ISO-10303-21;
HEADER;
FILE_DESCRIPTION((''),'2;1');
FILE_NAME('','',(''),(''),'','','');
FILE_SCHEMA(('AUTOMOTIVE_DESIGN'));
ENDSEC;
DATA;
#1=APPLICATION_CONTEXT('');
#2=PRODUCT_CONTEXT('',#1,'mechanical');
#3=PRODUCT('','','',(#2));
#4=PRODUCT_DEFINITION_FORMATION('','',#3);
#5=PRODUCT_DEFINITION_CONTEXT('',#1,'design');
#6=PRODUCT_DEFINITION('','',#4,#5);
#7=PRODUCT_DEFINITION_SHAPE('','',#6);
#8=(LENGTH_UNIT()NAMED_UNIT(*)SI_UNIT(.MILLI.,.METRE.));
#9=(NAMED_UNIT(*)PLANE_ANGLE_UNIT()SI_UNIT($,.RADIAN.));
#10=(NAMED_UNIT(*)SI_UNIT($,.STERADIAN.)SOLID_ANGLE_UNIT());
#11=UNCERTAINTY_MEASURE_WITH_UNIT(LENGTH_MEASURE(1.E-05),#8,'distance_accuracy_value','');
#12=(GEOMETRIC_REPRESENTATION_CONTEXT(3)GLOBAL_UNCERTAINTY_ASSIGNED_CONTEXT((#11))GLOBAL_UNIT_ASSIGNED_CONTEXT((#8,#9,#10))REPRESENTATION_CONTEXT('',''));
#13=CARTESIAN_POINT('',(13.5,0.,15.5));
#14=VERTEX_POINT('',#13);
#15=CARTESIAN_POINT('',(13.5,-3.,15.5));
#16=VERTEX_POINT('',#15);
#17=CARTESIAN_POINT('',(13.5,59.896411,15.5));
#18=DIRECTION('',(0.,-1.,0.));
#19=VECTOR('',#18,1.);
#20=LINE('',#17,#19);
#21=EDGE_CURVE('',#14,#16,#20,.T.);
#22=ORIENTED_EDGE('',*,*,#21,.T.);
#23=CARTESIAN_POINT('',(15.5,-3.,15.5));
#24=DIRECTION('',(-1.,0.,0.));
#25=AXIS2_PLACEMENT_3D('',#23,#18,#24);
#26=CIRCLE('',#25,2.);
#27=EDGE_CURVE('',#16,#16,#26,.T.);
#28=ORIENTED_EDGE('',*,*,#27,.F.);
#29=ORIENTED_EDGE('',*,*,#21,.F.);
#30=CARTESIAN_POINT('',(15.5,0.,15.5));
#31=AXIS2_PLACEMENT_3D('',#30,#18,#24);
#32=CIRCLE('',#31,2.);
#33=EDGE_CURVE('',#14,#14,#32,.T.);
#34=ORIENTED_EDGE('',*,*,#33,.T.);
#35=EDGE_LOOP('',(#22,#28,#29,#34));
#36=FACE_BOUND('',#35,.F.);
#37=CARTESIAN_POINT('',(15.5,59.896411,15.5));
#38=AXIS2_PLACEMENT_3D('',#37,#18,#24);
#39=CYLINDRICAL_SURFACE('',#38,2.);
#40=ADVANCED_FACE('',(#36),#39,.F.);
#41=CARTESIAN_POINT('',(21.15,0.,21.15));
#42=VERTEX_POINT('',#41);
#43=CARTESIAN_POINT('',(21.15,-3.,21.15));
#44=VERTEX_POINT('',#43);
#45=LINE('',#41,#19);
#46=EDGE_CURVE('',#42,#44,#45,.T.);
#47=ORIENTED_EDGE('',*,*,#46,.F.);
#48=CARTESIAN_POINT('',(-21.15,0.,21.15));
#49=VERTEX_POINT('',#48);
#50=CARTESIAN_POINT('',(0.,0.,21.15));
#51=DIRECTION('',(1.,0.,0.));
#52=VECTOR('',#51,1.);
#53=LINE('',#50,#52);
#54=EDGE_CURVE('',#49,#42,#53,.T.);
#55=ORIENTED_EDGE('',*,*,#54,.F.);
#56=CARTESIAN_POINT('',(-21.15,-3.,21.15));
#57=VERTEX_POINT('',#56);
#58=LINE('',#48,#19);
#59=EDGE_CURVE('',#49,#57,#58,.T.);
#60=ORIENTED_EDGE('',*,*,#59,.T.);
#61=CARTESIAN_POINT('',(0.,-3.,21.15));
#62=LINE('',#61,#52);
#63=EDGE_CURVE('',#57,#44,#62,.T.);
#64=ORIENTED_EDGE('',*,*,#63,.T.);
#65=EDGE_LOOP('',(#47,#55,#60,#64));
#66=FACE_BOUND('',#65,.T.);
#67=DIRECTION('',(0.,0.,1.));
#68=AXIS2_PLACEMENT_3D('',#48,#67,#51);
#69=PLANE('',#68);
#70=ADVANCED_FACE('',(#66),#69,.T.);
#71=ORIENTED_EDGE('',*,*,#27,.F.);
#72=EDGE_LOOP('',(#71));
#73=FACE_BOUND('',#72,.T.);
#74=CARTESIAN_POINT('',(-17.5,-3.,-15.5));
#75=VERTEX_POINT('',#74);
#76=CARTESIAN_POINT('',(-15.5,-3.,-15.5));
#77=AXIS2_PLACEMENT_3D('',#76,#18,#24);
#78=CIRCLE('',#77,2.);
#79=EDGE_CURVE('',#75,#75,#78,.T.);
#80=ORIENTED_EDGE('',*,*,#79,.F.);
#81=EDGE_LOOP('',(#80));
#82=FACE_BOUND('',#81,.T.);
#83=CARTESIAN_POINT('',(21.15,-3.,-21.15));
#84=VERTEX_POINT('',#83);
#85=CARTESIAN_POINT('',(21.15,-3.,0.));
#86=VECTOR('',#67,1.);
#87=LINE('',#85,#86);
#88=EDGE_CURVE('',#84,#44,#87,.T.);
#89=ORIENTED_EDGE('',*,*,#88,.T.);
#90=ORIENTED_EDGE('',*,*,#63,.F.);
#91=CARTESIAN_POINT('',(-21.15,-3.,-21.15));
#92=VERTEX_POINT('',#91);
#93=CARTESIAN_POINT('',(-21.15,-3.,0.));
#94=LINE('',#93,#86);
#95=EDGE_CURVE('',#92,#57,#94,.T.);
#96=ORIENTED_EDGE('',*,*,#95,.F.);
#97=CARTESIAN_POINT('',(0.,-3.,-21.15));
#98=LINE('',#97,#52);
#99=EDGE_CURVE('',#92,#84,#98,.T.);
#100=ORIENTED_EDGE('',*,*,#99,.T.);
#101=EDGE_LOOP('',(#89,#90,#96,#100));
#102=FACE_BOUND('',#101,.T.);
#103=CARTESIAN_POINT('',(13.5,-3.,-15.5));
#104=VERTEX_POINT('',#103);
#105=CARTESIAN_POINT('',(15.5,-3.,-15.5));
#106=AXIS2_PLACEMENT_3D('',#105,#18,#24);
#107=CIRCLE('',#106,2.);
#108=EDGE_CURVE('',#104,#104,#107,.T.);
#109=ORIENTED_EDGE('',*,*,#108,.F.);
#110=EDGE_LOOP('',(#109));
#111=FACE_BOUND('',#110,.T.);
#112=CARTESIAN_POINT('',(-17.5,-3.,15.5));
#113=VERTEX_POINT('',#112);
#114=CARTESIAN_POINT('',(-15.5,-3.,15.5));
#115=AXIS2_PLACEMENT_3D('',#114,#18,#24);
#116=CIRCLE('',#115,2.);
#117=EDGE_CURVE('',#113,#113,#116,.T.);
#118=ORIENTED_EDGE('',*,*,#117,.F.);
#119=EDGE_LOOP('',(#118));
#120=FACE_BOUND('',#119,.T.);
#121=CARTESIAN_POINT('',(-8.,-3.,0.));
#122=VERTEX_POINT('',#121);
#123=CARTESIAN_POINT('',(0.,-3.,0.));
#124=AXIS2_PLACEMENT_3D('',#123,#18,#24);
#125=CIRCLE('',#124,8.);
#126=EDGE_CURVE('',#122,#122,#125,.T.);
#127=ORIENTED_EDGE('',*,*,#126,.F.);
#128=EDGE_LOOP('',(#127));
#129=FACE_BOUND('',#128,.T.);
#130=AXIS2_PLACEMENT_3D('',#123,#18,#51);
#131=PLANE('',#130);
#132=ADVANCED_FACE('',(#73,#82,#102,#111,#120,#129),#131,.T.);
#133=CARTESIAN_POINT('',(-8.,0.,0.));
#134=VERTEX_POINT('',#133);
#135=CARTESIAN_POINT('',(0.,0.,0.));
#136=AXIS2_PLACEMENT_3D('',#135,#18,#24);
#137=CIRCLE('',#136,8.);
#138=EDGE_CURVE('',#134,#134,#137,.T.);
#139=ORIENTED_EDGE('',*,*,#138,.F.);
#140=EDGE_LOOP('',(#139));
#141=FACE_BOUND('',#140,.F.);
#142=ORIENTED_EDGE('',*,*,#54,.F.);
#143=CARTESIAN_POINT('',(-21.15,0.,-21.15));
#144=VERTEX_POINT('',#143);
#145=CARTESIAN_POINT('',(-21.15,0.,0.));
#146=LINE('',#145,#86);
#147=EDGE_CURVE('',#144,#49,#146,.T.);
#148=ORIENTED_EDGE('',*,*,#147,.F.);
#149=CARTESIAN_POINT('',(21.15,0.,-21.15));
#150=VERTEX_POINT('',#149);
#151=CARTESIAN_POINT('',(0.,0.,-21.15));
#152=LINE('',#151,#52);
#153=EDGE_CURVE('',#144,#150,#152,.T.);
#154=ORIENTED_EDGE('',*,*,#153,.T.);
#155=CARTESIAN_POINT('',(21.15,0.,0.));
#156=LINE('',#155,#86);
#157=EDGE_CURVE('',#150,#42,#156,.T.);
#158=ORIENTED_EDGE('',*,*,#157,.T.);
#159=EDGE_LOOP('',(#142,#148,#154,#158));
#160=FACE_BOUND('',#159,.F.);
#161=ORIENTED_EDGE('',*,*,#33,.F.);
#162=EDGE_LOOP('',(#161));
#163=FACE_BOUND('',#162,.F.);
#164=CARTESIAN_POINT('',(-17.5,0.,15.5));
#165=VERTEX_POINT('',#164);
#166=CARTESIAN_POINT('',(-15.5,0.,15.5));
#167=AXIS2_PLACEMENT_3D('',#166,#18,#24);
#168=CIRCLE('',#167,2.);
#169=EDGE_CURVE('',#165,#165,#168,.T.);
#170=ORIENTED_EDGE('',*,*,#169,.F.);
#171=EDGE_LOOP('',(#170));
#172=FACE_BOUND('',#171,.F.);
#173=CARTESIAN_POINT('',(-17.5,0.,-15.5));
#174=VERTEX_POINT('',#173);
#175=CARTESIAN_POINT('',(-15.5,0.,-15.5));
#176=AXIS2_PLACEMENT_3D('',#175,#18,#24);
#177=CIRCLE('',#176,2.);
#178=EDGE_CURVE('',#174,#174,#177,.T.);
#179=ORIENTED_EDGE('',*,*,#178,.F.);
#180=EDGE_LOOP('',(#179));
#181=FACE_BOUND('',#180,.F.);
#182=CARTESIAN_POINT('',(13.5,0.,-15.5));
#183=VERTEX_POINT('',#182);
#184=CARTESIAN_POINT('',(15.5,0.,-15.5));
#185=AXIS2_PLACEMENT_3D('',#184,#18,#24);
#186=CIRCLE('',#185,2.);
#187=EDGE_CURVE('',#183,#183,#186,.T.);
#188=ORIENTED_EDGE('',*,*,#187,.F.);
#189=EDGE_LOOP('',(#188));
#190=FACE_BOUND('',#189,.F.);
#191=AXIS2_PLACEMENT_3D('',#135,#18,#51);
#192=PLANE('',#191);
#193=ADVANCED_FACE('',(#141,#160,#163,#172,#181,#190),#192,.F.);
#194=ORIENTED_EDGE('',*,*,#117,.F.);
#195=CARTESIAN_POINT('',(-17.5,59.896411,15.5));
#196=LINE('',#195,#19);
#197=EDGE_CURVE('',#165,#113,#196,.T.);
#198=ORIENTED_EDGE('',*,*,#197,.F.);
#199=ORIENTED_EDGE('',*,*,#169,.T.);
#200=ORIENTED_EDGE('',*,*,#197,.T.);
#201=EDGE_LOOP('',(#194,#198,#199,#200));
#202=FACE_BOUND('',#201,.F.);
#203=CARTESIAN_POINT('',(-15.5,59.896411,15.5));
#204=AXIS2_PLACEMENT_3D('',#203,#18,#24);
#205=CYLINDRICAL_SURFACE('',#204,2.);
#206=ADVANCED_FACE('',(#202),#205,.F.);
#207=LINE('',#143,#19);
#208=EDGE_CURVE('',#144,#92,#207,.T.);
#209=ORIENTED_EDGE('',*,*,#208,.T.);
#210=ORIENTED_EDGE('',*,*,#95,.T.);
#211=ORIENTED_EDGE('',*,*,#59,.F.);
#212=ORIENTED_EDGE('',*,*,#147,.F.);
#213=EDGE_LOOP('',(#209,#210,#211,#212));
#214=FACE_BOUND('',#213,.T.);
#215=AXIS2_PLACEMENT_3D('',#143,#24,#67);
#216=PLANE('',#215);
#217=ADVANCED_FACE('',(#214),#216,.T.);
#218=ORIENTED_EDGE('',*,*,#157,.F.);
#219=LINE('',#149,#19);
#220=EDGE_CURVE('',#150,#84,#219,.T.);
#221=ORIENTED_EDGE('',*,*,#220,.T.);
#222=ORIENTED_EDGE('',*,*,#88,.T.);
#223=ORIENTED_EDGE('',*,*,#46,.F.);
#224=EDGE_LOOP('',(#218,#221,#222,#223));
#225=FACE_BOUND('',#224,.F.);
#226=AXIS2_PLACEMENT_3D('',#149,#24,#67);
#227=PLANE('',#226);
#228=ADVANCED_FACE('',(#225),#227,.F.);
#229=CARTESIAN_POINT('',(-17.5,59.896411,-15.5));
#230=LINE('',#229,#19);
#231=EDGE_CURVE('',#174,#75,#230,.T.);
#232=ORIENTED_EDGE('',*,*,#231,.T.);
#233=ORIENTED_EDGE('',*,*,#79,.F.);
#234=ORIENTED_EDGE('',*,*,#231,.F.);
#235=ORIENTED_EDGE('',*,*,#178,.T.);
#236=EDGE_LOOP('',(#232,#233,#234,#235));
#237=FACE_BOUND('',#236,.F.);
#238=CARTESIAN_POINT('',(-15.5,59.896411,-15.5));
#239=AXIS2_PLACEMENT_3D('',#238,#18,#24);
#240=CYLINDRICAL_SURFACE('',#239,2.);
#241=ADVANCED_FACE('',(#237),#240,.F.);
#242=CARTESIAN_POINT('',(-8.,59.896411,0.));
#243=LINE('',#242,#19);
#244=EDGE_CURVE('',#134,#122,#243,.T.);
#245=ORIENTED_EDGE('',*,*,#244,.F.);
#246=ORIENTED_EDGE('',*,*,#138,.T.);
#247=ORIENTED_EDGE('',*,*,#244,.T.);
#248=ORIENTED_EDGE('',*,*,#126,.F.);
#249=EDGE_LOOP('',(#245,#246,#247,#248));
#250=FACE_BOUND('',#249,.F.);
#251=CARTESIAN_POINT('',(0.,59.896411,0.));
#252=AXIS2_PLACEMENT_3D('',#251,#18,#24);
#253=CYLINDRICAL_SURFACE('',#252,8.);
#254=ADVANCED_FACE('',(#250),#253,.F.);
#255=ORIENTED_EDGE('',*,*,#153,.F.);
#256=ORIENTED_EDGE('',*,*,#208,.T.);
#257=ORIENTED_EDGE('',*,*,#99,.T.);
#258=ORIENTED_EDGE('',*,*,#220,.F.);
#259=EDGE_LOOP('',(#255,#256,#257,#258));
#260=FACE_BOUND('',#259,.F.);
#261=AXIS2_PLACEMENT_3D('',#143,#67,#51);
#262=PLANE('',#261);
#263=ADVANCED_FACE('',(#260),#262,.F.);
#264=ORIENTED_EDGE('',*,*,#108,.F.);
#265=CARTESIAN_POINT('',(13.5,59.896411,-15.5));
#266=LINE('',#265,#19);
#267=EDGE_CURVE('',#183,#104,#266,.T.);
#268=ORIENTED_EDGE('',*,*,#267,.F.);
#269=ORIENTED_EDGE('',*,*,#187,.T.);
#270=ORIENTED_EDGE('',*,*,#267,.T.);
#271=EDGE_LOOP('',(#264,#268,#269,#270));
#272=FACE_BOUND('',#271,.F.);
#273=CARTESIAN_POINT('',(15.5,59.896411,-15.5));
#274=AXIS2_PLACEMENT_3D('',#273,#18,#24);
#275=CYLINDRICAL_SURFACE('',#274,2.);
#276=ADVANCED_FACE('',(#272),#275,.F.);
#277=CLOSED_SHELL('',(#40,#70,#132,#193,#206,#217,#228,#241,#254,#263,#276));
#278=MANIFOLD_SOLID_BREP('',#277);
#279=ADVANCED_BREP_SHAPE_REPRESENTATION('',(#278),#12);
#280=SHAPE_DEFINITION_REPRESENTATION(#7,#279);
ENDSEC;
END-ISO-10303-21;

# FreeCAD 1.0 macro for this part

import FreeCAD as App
import Part
import Sketcher
from FreeCAD import Vector
Q = App.Units.Quantity

doc = App.newDocument("Part")
params = doc.addObject("Spreadsheet::Sheet", "Params")
for row, (alias, value) in enumerate([
    ("sketch1_width", "42.3 mm"),
    ("pad1_length", "3 mm"),
    ("sketch2_diameter", "4 mm"),
    ("hole_diameter", "4 mm"),
    ("sketch3_diameter", "16 mm"),
    ("hole2_diameter", "16 mm"),
], start=1):
    params.set(f"A{row}", alias)
    params.set(f"B{row}", "=" + value)
    params.setAlias(f"B{row}", alias)

body = doc.addObject("PartDesign::Body", "Body")

# Sketch on XZ plane
sketch1 = body.newObject("Sketcher::SketchObject", "Sketch")
sketch1.AttachmentSupport = (doc.getObject("XZ_Plane"), [""])
sketch1.MapMode = "FlatFace"
sketch1.addGeometry([
    Part.LineSegment(Vector(-21, 21, 0), Vector(-21, -21, 0)),
    Part.LineSegment(Vector(-21, -21, 0), Vector(21, -21, 0)),
    Part.LineSegment(Vector(21, -21, 0), Vector(21, 21, 0)),
    Part.LineSegment(Vector(21, 21, 0), Vector(-21, 21, 0)),
], False)
sketch1.addConstraint([
    Sketcher.Constraint("Coincident", 0, 2, 1, 1),
    Sketcher.Constraint("Coincident", 1, 2, 2, 1),
    Sketcher.Constraint("Coincident", 2, 2, 3, 1),
    Sketcher.Constraint("Coincident", 3, 2, 0, 1),
    Sketcher.Constraint("Vertical", 0),
    Sketcher.Constraint("Horizontal", 1),
    Sketcher.Constraint("Vertical", 2),
    Sketcher.Constraint("Horizontal", 3),
    Sketcher.Constraint("Symmetric", 0, 2, 2, 2, -1, 1),
    Sketcher.Constraint("Equal", 3, 0),
    Sketcher.Constraint("DistanceX", 1, 1, 1, 2, Q("42.3 mm")),
])
sketch1.setExpression("Constraints[10]", "Params.sketch1_width")
pad1 = body.newObject("PartDesign::Pad", "Pad")
pad1.Profile = sketch1
pad1.setExpression("Length", "Params.pad1_length")

# Sketch on XZ plane
sketch2 = body.newObject("Sketcher::SketchObject", "Sketch001")
sketch2.AttachmentSupport = (doc.getObject("XZ_Plane"), [""])
sketch2.MapMode = "FlatFace"
sketch2.addGeometry([
    Part.Circle(Vector(-15.5, -15.5, 0), Vector(0, 0, 1), 2),
    Part.Circle(Vector(15.5, -15.5, 0), Vector(0, 0, 1), 2),
    Part.Circle(Vector(15.5, 15.5, 0), Vector(0, 0, 1), 2),
    Part.Circle(Vector(-15.5, 15.5, 0), Vector(0, 0, 1), 2),
], False)
sketch2.addConstraint([
    Sketcher.Constraint("Equal", 0, 1),
    Sketcher.Constraint("Equal", 1, 2),
    Sketcher.Constraint("Equal", 2, 3),
    Sketcher.Constraint("Symmetric", 0, 3, 2, 3, -1, 1),
    Sketcher.Constraint("Symmetric", 1, 3, 3, 3, -1, 1),
    Sketcher.Constraint("Symmetric", 0, 3, 1, 3, -2),
    Sketcher.Constraint("Diameter", 0, Q("4 mm")),
    Sketcher.Constraint("DistanceX", 0, 3, 1, 3, Q("31 mm")),
    Sketcher.Constraint("DistanceY", 1, 3, 2, 3, Q("31 mm")),
])
sketch2.setExpression("Constraints[6]", "Params.sketch2_diameter")
doc.recompute()
hole = body.newObject("PartDesign::Hole", "Hole")
hole.Profile = sketch2
hole.ThreadType = "None"
hole.setExpression("Diameter", "Params.hole_diameter")
hole.DepthType = "ThroughAll"
hole.Reversed = True

# Sketch on XZ plane
sketch3 = body.newObject("Sketcher::SketchObject", "Sketch002")
sketch3.AttachmentSupport = (doc.getObject("XZ_Plane"), [""])
sketch3.MapMode = "FlatFace"
sketch3.addGeometry(Part.Circle(Vector(0, 0, 0), Vector(0, 0, 1), 8), False)
sketch3.addConstraint([
    Sketcher.Constraint("Coincident", 0, 3, -1, 1),
    Sketcher.Constraint("Diameter", 0, Q("16 mm")),
])
sketch3.setExpression("Constraints[1]", "Params.sketch3_diameter")
doc.recompute()
hole2 = body.newObject("PartDesign::Hole", "Hole001")
hole2.Profile = sketch3
hole2.ThreadType = "None"
hole2.setExpression("Diameter", "Params.hole2_diameter")
hole2.DepthType = "ThroughAll"
hole2.Reversed = True

doc.recompute()
